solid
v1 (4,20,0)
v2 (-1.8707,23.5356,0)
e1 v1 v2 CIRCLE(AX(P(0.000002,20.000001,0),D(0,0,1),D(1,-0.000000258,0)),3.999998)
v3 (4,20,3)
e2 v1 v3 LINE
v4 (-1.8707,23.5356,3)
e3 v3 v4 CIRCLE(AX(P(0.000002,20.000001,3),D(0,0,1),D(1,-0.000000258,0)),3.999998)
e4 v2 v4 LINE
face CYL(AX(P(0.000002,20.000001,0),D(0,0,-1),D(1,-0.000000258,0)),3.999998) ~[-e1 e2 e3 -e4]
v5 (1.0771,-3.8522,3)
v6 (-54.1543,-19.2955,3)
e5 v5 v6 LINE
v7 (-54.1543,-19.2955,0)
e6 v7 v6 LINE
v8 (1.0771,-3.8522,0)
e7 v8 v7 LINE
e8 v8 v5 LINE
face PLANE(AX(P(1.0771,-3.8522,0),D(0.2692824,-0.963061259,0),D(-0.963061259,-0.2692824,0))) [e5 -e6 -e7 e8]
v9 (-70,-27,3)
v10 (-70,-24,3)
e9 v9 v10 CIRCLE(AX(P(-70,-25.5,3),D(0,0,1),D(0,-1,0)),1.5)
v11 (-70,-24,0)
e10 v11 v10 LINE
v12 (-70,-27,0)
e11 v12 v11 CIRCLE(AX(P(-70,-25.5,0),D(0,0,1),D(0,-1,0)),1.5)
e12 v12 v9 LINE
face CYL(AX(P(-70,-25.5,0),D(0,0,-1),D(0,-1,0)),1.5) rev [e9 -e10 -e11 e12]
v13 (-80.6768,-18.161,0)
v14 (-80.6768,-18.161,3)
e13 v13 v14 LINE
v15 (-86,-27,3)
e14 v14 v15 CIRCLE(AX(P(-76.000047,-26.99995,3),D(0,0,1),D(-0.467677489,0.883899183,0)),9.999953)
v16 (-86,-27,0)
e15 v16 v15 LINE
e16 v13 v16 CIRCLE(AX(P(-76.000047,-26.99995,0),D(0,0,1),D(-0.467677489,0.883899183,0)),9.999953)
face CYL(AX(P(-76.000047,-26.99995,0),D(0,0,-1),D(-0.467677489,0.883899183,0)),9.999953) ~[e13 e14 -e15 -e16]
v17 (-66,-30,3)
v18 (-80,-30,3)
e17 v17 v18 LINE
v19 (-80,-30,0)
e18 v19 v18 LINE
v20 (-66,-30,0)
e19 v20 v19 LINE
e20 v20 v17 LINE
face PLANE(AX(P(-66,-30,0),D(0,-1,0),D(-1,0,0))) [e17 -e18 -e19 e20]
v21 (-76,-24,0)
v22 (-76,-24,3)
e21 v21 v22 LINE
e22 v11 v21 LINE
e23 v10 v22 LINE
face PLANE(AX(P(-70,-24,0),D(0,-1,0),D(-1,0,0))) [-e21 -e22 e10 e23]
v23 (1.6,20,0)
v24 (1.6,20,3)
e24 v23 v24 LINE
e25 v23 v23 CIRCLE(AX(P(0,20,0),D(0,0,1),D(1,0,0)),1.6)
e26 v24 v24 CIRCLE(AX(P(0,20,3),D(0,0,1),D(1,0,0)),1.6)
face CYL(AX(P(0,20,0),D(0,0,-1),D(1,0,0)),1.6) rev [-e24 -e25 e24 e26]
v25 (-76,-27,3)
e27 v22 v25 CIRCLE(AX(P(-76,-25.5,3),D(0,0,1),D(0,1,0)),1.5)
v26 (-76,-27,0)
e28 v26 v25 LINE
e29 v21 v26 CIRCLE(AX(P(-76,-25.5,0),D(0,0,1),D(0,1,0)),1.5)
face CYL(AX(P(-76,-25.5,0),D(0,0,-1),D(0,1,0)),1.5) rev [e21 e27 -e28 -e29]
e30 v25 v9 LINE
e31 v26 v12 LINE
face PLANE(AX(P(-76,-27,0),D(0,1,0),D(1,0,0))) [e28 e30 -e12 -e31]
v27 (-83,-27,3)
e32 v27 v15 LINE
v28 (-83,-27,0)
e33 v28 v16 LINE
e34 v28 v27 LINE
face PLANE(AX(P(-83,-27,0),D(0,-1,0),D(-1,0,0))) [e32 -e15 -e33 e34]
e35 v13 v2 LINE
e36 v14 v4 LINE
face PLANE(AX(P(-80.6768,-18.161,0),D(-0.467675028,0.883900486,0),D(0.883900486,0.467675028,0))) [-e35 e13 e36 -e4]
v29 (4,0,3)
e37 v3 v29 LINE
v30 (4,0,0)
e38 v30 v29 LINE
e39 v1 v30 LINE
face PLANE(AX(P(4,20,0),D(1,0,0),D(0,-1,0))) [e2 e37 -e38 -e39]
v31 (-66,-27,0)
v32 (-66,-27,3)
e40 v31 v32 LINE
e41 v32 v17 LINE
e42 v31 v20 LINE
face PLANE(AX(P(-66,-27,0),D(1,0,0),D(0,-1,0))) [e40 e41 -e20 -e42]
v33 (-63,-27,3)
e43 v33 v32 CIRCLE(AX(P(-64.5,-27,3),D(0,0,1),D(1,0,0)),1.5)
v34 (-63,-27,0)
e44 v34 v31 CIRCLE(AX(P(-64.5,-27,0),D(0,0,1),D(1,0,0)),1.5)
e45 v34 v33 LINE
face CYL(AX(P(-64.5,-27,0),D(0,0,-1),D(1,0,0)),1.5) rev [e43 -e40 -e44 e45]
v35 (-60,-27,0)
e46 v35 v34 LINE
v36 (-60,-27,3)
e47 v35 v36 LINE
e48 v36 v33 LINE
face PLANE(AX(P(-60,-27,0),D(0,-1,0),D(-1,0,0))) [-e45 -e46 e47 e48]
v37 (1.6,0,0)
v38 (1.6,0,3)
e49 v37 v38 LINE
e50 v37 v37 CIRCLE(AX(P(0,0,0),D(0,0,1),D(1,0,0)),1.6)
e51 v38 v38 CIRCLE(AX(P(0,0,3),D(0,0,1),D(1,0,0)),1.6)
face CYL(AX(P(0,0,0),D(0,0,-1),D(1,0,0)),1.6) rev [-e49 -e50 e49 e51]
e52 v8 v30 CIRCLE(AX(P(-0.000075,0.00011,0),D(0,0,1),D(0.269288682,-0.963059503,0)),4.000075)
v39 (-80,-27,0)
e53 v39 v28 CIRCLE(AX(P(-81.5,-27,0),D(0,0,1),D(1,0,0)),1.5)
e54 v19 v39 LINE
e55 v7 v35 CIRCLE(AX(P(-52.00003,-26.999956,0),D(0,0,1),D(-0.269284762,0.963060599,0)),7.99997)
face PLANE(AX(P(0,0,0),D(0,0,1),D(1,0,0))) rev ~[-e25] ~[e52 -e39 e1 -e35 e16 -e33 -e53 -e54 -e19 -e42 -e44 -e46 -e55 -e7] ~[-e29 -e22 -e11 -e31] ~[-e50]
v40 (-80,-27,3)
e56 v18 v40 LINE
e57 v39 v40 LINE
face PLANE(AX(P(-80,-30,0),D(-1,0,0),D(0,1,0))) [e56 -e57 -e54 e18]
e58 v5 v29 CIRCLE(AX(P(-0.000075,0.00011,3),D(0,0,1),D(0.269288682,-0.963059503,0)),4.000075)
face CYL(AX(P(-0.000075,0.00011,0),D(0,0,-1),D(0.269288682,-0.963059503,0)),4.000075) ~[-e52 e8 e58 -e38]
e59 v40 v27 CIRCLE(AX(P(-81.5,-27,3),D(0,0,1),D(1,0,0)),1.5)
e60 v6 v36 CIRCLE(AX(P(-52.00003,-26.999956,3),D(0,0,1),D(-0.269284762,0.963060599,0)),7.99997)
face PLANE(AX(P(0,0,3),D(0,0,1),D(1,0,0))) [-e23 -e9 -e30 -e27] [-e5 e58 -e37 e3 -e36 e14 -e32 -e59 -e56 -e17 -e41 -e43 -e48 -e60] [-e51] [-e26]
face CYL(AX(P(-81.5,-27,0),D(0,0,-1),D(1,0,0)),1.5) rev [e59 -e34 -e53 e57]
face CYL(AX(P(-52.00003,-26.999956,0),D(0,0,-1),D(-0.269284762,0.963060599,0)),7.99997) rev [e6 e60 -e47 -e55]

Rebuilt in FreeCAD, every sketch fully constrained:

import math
import FreeCAD as App
import Part
import Sketcher
from FreeCAD import Vector

doc = App.newDocument("Part")
body = doc.addObject("PartDesign::Body", "Body")

# Sketch on XY plane
sketch1 = doc.addObject("Sketcher::SketchObject", "Sketch")
body.addObject(sketch1)
sketch1.AttachmentSupport = (doc.XY_Plane, [""])
sketch1.MapMode = "FlatFace"
sketch1.addGeometry([
    Part.LineSegment(Vector(-54.1543, -19.2955, 0), Vector(1.0771, -3.8522, 0)),  # 0
    Part.ArcOfCircle(Part.Circle(Vector(0, 0, 0), Vector(0, 0, 1), 3.999949), math.radians(-74.378665), math.radians(0)),  # 1
    Part.LineSegment(Vector(4, 0, 0), Vector(4, 20, 0)),  # 2
    Part.ArcOfCircle(Part.Circle(Vector(0, 20, 0), Vector(0, 0, 1), 4), math.radians(0), math.radians(117.883495)),  # 3
    Part.LineSegment(Vector(-1.8707, 23.5356, 0), Vector(-80.6768, -18.161, 0)),  # 4
    Part.ArcOfCircle(Part.Circle(Vector(-76, -27, 0), Vector(0, 0, 1), 10.000019), math.radians(117.883748), math.radians(180)),  # 5
    Part.LineSegment(Vector(-86, -27, 0), Vector(-83, -27, 0)),  # 6
    Part.ArcOfCircle(Part.Circle(Vector(-81.5, -27, 0), Vector(0, 0, 1), 1.5), math.radians(0), math.radians(180)),  # 7
    Part.LineSegment(Vector(-80, -27, 0), Vector(-80, -30, 0)),  # 8
    Part.LineSegment(Vector(-80, -30, 0), Vector(-66, -30, 0)),  # 9
    Part.LineSegment(Vector(-66, -30, 0), Vector(-66, -27, 0)),  # 10
    Part.ArcOfCircle(Part.Circle(Vector(-64.5, -27, 0), Vector(0, 0, 1), 1.5), math.radians(0), math.radians(180)),  # 11
    Part.LineSegment(Vector(-63, -27, 0), Vector(-60, -27, 0)),  # 12
    Part.ArcOfCircle(Part.Circle(Vector(-52, -27, 0), Vector(0, 0, 1), 8.000021), math.radians(105.621832), math.radians(180)),  # 13
    Part.LineSegment(Vector(-70, -27, 0), Vector(-76, -27, 0)),  # 14
    Part.ArcOfCircle(Part.Circle(Vector(-76, -25.5, 0), Vector(0, 0, 1), 1.5), math.radians(90), math.radians(270)),  # 15
    Part.LineSegment(Vector(-76, -24, 0), Vector(-70, -24, 0)),  # 16
    Part.ArcOfCircle(Part.Circle(Vector(-70, -25.5, 0), Vector(0, 0, 1), 1.5), math.radians(-90), math.radians(90)),  # 17
    Part.Circle(Vector(0, 0, 0), Vector(0, 0, 1), 1.6),  # 18
    Part.Circle(Vector(0, 20, 0), Vector(0, 0, 1), 1.6),  # 19
], False)
sketch1.addConstraint([
    Sketcher.Constraint("Tangent", 0, 2, 1, 1),
    Sketcher.Constraint("Tangent", 1, 2, 2, 1),
    Sketcher.Constraint("Tangent", 2, 2, 3, 1),
    Sketcher.Constraint("Tangent", 3, 2, 4, 1),
    Sketcher.Constraint("Tangent", 4, 2, 5, 1),
    Sketcher.Constraint("Coincident", 5, 2, 6, 1),
    Sketcher.Constraint("Coincident", 6, 2, 7, 2),
    Sketcher.Constraint("Tangent", 7, 1, 8, 1),
    Sketcher.Constraint("Coincident", 8, 2, 9, 1),
    Sketcher.Constraint("Coincident", 9, 2, 10, 1),
    Sketcher.Constraint("Tangent", 10, 2, 11, 2),
    Sketcher.Constraint("Coincident", 11, 1, 12, 1),
    Sketcher.Constraint("Coincident", 12, 2, 13, 2),
    Sketcher.Constraint("Tangent", 13, 1, 0, 1),
    Sketcher.Constraint("Tangent", 14, 2, 15, 2),
    Sketcher.Constraint("Tangent", 15, 1, 16, 1),
    Sketcher.Constraint("Tangent", 16, 2, 17, 2),
    Sketcher.Constraint("Tangent", 17, 1, 14, 1),
    Sketcher.Constraint("Vertical", 2),
    Sketcher.Constraint("Horizontal", 6),
    Sketcher.Constraint("Vertical", 8),
    Sketcher.Constraint("Horizontal", 9),
    Sketcher.Constraint("Vertical", 10),
    Sketcher.Constraint("Horizontal", 12),
    Sketcher.Constraint("Horizontal", 14),
    Sketcher.Constraint("Horizontal", 16),
    Sketcher.Constraint("Coincident", 1, 3, -1, 1),
    Sketcher.Constraint("Coincident", 18, 3, -1, 1),
    Sketcher.Constraint("Coincident", 19, 3, 3, 3),
    Sketcher.Constraint("Coincident", 14, 2, 5, 3),
    Sketcher.Constraint("Equal", 1, 3),
    Sketcher.Constraint("Equal", 7, 11),
    Sketcher.Constraint("Equal", 11, 15),
    Sketcher.Constraint("Equal", 18, 19),
    Sketcher.Constraint("Horizontal", 5, 3, 7, 3),
    Sketcher.Constraint("Horizontal", 7, 3, 11, 3),
    Sketcher.Constraint("Horizontal", 11, 3, 13, 3),
    Sketcher.Constraint("Horizontal", 13, 3, 5, 2),
    Sketcher.Constraint("Horizontal", 10, 2, 11, 1),
    Sketcher.Constraint("Equal", 6, 12),
    Sketcher.Constraint("Equal", 12, 8),
    Sketcher.Constraint("Radius", 1, 4.0),
    Sketcher.Constraint("Radius", 5, 10.0),
    Sketcher.Constraint("Radius", 13, 8.0),
    Sketcher.Constraint("Diameter", 18, 3.2),
    Sketcher.Constraint("Radius", 7, 1.5),
    Sketcher.Constraint("DistanceX", 6, 1, 6, 2, 3.0),
    Sketcher.Constraint("DistanceX", 9, 1, 9, 2, 14.0),
    Sketcher.Constraint("DistanceX", 14, 2, 14, 1, 6.0),
    Sketcher.Constraint("DistanceY", 2, 1, 2, 2, 20.0),
    Sketcher.Constraint("DistanceY", 8, 2, -1, 1, 30.0),
    Sketcher.Constraint("DistanceX", 12, 2, -1, 1, 60.0),
])
pad1 = doc.addObject("PartDesign::Pad", "Pad")
body.addObject(pad1)
pad1.Profile = sketch1
pad1.Length = 3

doc.recompute()
